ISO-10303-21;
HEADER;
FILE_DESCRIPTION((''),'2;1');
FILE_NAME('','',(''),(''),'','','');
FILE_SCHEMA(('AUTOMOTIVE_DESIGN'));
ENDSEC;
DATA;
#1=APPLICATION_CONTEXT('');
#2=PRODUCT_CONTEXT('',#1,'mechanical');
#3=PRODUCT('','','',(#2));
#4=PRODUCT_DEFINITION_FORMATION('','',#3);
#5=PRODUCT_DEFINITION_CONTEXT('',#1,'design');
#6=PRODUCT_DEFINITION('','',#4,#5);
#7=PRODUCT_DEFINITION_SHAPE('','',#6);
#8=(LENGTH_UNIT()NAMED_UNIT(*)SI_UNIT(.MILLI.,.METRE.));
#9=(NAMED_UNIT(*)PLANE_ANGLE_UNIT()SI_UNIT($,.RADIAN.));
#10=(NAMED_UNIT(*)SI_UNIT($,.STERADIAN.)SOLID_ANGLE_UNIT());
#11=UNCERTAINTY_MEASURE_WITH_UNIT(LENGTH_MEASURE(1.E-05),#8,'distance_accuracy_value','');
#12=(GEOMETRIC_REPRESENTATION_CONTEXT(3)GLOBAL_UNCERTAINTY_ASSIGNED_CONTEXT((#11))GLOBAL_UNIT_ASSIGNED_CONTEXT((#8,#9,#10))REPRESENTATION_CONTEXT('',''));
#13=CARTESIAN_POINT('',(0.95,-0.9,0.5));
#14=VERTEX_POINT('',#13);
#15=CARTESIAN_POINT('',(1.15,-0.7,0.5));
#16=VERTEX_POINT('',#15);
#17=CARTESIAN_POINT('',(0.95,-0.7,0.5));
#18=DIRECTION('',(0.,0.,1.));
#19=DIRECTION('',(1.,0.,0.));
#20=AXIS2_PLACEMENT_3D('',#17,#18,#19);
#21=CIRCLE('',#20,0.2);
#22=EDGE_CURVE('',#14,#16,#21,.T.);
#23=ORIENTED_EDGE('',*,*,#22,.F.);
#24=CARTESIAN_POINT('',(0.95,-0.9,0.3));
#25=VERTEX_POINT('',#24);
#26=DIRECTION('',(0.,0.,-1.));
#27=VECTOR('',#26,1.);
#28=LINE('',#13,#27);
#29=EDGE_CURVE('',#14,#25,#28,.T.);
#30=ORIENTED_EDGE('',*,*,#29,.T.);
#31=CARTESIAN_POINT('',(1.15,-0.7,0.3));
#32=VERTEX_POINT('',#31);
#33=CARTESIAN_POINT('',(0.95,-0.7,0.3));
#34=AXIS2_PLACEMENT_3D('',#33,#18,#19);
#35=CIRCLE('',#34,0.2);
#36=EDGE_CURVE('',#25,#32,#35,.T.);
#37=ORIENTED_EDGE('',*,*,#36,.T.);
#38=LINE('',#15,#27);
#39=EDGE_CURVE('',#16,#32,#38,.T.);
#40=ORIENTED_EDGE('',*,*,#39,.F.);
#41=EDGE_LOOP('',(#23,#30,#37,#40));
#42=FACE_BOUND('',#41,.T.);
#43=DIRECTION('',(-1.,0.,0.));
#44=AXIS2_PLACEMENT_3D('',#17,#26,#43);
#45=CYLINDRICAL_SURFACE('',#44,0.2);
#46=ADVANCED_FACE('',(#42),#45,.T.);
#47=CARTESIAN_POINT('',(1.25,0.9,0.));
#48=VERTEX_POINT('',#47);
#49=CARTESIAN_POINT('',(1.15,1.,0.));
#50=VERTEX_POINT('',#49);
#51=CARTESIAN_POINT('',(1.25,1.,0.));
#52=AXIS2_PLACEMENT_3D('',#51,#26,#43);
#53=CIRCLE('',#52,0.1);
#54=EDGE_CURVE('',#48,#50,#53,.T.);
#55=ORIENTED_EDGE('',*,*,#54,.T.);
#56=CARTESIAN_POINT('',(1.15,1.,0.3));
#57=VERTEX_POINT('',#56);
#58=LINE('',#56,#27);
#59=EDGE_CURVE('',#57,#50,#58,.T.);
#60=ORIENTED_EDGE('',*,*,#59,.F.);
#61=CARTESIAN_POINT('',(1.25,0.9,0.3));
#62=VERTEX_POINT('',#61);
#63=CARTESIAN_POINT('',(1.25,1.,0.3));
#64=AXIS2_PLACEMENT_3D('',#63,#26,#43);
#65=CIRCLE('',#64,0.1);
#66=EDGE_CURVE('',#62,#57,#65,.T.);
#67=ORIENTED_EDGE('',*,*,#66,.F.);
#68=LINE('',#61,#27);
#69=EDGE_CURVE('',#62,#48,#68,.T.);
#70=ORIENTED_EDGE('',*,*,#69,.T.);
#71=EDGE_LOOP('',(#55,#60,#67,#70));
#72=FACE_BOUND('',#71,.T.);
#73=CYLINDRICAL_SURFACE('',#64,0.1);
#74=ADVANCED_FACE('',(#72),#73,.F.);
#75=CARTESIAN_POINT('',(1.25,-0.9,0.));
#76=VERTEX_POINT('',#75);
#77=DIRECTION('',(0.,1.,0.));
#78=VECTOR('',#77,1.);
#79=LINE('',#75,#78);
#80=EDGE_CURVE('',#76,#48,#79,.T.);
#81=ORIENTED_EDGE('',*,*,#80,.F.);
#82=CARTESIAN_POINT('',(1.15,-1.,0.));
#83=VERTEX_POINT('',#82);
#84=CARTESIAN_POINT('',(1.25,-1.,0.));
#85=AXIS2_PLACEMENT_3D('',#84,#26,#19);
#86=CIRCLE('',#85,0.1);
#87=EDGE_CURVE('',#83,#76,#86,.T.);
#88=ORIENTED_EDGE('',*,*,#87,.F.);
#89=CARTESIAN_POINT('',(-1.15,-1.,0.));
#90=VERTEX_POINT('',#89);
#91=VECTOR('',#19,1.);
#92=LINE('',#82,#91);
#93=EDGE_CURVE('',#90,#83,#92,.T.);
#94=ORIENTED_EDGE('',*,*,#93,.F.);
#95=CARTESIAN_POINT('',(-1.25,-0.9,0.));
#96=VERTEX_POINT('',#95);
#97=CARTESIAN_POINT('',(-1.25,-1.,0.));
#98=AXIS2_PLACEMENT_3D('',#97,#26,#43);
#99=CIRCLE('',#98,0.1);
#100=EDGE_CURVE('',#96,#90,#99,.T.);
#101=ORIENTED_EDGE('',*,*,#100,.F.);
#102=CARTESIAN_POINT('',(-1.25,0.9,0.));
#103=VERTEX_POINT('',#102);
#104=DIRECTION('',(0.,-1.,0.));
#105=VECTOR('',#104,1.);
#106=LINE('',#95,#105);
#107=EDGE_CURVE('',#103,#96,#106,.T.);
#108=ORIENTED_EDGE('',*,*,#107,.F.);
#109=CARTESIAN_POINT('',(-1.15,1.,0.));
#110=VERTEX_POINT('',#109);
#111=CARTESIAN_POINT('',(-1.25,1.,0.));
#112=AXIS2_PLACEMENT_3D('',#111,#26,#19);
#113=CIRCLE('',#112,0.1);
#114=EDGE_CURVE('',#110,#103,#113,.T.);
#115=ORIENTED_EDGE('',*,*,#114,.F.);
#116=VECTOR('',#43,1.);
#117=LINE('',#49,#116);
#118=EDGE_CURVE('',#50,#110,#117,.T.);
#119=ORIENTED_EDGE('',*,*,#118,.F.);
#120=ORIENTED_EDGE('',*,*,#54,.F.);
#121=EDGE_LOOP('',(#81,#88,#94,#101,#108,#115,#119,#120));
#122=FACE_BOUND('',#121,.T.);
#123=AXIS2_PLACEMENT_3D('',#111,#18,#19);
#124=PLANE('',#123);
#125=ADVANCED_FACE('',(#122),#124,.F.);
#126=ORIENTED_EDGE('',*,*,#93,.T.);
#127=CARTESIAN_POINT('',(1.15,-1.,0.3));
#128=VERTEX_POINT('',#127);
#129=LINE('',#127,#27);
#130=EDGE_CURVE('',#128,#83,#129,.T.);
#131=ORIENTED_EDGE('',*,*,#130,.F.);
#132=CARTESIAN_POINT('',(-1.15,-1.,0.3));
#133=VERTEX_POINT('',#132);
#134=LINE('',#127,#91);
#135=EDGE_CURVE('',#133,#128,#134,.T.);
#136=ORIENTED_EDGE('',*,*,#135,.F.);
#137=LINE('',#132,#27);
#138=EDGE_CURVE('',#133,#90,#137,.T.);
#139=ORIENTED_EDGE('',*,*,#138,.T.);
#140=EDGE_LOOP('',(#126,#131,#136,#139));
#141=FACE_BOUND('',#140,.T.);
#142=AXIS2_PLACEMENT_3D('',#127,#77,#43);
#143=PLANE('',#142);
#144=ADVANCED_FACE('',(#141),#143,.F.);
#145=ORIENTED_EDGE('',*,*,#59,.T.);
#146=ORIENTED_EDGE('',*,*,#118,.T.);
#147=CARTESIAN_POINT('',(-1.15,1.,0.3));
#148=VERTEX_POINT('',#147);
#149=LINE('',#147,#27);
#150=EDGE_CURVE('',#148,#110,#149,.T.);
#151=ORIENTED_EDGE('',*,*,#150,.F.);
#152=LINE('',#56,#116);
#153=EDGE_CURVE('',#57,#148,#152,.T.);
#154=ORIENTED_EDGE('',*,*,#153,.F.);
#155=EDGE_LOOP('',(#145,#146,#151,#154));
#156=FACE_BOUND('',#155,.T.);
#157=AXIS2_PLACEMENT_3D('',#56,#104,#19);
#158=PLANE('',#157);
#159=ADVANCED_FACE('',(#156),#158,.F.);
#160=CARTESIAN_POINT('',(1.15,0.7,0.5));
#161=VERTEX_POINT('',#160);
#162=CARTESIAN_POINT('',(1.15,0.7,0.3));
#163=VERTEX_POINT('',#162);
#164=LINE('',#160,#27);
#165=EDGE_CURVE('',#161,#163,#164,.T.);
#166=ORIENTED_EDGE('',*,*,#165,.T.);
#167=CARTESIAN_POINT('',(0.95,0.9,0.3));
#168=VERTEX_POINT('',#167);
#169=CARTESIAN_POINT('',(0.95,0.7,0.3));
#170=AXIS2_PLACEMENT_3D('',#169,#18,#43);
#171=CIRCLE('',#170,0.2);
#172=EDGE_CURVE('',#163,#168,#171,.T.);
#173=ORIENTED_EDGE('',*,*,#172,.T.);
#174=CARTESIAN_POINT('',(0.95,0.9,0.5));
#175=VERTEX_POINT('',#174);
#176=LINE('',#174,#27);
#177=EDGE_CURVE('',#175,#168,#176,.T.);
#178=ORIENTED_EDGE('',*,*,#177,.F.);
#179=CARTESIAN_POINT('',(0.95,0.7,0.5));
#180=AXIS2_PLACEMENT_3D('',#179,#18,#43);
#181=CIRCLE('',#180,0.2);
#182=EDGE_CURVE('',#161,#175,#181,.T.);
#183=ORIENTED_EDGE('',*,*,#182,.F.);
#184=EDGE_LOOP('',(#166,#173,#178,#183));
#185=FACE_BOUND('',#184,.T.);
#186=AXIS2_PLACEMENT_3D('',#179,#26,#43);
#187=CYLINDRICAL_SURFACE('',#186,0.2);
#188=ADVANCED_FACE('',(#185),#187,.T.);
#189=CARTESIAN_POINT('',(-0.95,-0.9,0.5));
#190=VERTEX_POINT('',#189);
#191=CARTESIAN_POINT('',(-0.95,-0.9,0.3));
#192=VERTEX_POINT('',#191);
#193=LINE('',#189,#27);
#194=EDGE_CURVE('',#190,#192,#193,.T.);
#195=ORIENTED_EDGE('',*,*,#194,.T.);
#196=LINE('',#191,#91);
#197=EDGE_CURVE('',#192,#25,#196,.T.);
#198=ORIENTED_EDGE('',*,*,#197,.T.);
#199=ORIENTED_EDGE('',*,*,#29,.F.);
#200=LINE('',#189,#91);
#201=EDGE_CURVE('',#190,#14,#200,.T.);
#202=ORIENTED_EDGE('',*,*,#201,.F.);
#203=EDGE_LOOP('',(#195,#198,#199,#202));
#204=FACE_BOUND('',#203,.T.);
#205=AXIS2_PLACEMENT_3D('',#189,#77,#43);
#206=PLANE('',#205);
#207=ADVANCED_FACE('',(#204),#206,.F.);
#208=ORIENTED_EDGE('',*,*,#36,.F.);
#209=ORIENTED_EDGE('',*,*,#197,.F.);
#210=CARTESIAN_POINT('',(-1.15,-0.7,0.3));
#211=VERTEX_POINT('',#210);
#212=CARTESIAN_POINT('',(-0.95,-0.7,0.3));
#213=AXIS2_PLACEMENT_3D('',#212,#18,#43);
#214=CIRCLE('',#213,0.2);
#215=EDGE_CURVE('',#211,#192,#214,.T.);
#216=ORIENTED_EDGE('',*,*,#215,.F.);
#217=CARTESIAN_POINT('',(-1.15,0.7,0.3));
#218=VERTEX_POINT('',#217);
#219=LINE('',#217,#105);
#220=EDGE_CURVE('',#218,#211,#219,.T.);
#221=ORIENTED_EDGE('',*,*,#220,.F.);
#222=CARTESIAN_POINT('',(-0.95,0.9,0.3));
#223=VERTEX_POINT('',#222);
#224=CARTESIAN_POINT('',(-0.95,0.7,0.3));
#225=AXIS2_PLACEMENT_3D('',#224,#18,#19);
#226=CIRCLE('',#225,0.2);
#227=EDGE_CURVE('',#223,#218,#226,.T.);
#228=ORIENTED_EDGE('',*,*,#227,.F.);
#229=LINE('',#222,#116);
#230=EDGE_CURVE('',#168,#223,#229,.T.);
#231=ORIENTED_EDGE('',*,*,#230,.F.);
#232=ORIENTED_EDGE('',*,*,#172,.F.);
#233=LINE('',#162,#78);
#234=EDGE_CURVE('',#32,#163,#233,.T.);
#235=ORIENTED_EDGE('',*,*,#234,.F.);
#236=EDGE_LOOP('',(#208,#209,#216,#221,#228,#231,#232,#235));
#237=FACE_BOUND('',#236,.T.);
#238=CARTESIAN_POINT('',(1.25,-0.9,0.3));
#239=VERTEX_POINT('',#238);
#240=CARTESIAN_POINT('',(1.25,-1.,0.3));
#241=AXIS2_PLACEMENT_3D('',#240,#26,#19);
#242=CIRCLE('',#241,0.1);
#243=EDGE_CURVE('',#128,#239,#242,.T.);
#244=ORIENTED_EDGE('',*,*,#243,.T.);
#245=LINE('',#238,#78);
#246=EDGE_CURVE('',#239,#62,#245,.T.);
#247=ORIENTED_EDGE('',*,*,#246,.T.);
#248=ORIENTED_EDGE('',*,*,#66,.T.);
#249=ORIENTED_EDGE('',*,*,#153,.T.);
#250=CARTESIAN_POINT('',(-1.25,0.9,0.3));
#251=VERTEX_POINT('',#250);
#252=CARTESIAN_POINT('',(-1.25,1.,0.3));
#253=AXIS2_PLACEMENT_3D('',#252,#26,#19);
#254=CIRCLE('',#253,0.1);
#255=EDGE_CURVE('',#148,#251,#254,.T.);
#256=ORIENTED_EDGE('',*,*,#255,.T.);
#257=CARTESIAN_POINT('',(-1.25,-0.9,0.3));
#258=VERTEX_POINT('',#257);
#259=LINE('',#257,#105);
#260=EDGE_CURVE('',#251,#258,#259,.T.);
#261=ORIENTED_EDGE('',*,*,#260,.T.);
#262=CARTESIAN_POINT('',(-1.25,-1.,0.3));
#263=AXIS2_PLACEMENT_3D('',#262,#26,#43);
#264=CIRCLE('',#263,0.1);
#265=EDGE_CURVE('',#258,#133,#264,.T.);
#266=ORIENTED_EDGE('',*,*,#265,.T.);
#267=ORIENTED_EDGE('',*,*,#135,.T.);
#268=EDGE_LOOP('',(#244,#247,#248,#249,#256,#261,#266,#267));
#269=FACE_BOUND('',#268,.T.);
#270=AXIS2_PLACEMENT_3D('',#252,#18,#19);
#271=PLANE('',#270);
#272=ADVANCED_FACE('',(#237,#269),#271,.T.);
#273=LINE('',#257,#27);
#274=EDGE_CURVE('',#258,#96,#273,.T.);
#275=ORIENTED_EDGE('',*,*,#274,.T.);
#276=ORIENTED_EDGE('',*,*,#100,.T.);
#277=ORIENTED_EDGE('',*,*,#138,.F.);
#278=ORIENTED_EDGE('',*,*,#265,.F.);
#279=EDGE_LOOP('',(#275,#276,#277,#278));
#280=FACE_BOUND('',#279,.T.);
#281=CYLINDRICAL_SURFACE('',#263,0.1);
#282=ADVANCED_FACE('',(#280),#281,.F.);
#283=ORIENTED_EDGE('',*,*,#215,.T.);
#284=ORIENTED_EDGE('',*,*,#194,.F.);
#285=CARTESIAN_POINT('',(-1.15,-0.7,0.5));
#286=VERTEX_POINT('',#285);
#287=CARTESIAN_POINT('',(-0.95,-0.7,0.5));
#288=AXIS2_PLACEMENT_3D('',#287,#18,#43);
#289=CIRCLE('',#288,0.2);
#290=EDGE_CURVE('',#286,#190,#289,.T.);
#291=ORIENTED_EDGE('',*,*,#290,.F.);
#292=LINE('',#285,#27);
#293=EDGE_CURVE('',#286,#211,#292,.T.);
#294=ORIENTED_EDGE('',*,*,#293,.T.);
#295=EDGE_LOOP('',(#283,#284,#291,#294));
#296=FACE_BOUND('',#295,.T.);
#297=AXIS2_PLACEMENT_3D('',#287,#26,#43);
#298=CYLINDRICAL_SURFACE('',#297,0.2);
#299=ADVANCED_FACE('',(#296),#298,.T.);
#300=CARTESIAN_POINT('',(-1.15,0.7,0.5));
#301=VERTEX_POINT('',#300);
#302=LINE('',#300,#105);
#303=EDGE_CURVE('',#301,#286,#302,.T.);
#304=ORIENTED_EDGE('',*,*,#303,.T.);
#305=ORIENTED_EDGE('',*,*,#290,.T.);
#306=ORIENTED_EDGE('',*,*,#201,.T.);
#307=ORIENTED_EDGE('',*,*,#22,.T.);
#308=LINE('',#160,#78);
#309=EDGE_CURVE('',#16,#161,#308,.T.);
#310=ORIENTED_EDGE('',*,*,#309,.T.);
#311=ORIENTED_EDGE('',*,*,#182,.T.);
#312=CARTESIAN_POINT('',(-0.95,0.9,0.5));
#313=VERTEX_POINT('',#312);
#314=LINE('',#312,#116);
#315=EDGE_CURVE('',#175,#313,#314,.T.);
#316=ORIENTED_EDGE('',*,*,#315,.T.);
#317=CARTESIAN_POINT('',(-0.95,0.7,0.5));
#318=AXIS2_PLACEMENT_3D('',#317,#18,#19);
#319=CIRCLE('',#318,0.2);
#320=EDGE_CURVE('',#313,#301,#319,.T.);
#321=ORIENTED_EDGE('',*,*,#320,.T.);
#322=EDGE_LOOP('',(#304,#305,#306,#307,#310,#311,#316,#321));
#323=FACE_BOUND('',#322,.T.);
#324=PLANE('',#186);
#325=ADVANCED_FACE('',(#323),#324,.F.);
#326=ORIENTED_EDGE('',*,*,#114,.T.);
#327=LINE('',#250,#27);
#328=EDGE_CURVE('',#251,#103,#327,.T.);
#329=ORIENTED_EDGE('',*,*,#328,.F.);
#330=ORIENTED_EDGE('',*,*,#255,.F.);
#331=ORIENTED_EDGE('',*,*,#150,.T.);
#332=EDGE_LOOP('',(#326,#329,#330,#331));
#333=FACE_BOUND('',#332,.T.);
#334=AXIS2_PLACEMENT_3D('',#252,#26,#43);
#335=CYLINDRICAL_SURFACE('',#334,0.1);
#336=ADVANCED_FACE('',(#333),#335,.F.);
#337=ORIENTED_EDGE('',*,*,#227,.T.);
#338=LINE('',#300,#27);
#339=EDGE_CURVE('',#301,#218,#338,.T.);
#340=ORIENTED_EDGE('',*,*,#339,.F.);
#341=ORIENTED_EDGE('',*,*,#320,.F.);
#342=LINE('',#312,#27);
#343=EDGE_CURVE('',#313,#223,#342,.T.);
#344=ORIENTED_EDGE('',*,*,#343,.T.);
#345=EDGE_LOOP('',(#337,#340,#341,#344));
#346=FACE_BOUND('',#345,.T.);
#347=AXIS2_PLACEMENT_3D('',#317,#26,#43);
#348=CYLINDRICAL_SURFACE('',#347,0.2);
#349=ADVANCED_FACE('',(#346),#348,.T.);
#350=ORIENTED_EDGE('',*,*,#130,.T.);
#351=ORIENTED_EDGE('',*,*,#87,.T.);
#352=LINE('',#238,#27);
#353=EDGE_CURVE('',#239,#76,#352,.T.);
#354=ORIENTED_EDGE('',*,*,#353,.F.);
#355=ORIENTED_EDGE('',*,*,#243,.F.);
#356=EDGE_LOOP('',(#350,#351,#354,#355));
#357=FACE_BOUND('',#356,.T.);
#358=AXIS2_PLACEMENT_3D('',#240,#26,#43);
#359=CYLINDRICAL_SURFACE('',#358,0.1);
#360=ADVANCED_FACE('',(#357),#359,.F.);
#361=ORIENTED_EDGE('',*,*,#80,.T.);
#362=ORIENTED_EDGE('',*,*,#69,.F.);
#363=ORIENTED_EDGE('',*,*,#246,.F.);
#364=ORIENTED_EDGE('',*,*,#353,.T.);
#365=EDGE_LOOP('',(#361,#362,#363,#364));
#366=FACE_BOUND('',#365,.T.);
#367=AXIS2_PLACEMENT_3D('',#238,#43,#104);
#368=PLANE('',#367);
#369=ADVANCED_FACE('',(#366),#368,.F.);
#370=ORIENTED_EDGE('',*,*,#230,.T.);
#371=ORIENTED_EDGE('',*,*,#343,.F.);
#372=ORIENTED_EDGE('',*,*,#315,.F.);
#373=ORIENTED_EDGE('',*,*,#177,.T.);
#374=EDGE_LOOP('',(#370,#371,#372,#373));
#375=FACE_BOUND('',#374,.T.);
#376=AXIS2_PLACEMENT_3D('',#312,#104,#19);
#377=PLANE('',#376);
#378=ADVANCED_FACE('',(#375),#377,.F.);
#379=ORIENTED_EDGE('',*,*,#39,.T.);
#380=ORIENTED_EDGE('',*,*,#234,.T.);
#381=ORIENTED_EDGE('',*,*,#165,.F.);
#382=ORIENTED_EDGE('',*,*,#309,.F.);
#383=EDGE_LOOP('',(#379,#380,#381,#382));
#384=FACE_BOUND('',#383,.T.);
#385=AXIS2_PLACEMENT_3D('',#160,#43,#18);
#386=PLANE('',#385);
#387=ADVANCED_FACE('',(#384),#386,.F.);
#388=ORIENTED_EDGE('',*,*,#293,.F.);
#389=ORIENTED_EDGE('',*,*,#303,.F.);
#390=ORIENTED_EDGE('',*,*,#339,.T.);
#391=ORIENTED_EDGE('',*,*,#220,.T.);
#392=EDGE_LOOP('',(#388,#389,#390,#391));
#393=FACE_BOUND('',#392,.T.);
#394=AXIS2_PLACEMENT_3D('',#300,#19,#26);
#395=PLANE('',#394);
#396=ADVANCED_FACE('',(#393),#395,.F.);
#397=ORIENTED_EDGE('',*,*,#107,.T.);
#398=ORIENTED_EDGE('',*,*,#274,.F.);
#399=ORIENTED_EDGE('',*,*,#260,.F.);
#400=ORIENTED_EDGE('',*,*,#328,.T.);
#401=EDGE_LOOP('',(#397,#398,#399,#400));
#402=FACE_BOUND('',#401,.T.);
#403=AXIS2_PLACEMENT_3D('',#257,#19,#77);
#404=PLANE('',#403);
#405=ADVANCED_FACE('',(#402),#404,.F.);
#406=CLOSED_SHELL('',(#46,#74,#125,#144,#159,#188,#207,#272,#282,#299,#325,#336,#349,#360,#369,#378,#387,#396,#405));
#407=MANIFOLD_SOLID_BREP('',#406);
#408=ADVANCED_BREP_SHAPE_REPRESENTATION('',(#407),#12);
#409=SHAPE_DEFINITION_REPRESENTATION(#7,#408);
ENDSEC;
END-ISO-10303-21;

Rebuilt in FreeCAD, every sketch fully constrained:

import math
import FreeCAD as App
import Part
import Sketcher

V = App.Vector
Q = App.Units.Quantity

doc = App.newDocument("Part")
body = doc.addObject("PartDesign::Body", "Body")

# Sketch on XY plane
sketch1 = doc.addObject("Sketcher::SketchObject", "Sketch")
body.addObject(sketch1)
sketch1.AttachmentSupport = (doc.XY_Plane, [""])
sketch1.MapMode = "FlatFace"
sketch1.addGeometry([
    Part.LineSegment(V(-1.25, 0.9, 0), V(-1.25, -0.9, 0)),  # 0
    Part.ArcOfCircle(Part.Circle(V(-1.25, -1, 0), V(0, 0, 1), 0.1), math.radians(0), math.radians(90)),  # 1
    Part.LineSegment(V(-1.15, -1, 0), V(1.15, -1, 0)),  # 2
    Part.ArcOfCircle(Part.Circle(V(1.25, -1, 0), V(0, 0, 1), 0.1), math.radians(90), math.radians(180)),  # 3
    Part.LineSegment(V(1.25, -0.9, 0), V(1.25, 0.9, 0)),  # 4
    Part.ArcOfCircle(Part.Circle(V(1.25, 1, 0), V(0, 0, 1), 0.1), math.radians(180), math.radians(270)),  # 5
    Part.LineSegment(V(1.15, 1, 0), V(-1.15, 1, 0)),  # 6
    Part.ArcOfCircle(Part.Circle(V(-1.25, 1, 0), V(0, 0, 1), 0.1), math.radians(-90), math.radians(0)),  # 7
], False)
sketch1.addConstraint([
    Sketcher.Constraint("Coincident", 0, 2, 1, 2),
    Sketcher.Constraint("Coincident", 1, 1, 2, 1),
    Sketcher.Constraint("Coincident", 2, 2, 3, 2),
    Sketcher.Constraint("Coincident", 3, 1, 4, 1),
    Sketcher.Constraint("Coincident", 4, 2, 5, 2),
    Sketcher.Constraint("Coincident", 5, 1, 6, 1),
    Sketcher.Constraint("Coincident", 6, 2, 7, 2),
    Sketcher.Constraint("Coincident", 7, 1, 0, 1),
    Sketcher.Constraint("Vertical", 0),
    Sketcher.Constraint("Horizontal", 2),
    Sketcher.Constraint("Vertical", 4),
    Sketcher.Constraint("Horizontal", 6),
    Sketcher.Constraint("Equal", 1, 3),
    Sketcher.Constraint("Equal", 3, 5),
    Sketcher.Constraint("Equal", 5, 7),
    Sketcher.Constraint("Symmetric", 1, 3, 5, 3, -1, 1),
    Sketcher.Constraint("Symmetric", 3, 3, 7, 3, -1, 1),
    Sketcher.Constraint("Symmetric", 1, 3, 3, 3, -2),
    Sketcher.Constraint("Horizontal", 3, 3, 1, 1),
    Sketcher.Constraint("Horizontal", 7, 3, 5, 1),
    Sketcher.Constraint("Vertical", 7, 3, 0, 2),
    Sketcher.Constraint("Vertical", 5, 3, 3, 1),
    Sketcher.Constraint("Radius", 1, Q("0.1 mm")),
    Sketcher.Constraint("DistanceX", 2, 1, 2, 2, Q("2.3 mm")),
    Sketcher.Constraint("DistanceY", 0, 2, 0, 1, Q("1.8 mm")),
])
pad1 = doc.addObject("PartDesign::Pad", "Pad")
body.addObject(pad1)
pad1.Profile = sketch1
pad1.Length = 0.3

# Sketch on XY plane
sketch2 = doc.addObject("Sketcher::SketchObject", "Sketch001")
body.addObject(sketch2)
sketch2.AttachmentSupport = (doc.XY_Plane, [""])
sketch2.MapMode = "FlatFace"
sketch2.AttachmentOffset = App.Placement(V(0, 0, 0.3), App.Rotation())
sketch2.addGeometry([
    Part.LineSegment(V(0.95, 0.9, 0), V(-0.95, 0.9, 0)),  # 0
    Part.ArcOfCircle(Part.Circle(V(-0.95, 0.7, 0), V(0, 0, 1), 0.2), math.radians(90), math.radians(180)),  # 1
    Part.LineSegment(V(-1.15, 0.7, 0), V(-1.15, -0.7, 0)),  # 2
    Part.ArcOfCircle(Part.Circle(V(-0.95, -0.7, 0), V(0, 0, 1), 0.2), math.radians(-180), math.radians(-90)),  # 3
    Part.LineSegment(V(-0.95, -0.9, 0), V(0.95, -0.9, 0)),  # 4
    Part.ArcOfCircle(Part.Circle(V(0.95, -0.7, 0), V(0, 0, 1), 0.2), math.radians(-90), math.radians(0)),  # 5
    Part.LineSegment(V(1.15, -0.7, 0), V(1.15, 0.7, 0)),  # 6
    Part.ArcOfCircle(Part.Circle(V(0.95, 0.7, 0), V(0, 0, 1), 0.2), math.radians(0), math.radians(90)),  # 7
], False)
sketch2.addConstraint([
    Sketcher.Constraint("Tangent", 0, 2, 1, 1),
    Sketcher.Constraint("Tangent", 1, 2, 2, 1),
    Sketcher.Constraint("Tangent", 2, 2, 3, 1),
    Sketcher.Constraint("Tangent", 3, 2, 4, 1),
    Sketcher.Constraint("Tangent", 4, 2, 5, 1),
    Sketcher.Constraint("Tangent", 5, 2, 6, 1),
    Sketcher.Constraint("Tangent", 6, 2, 7, 1),
    Sketcher.Constraint("Tangent", 7, 2, 0, 1),
    Sketcher.Constraint("Horizontal", 0),
    Sketcher.Constraint("Vertical", 2),
    Sketcher.Constraint("Horizontal", 4),
    Sketcher.Constraint("Vertical", 6),
    Sketcher.Constraint("Equal", 1, 3),
    Sketcher.Constraint("Equal", 3, 5),
    Sketcher.Constraint("Equal", 5, 7),
    Sketcher.Constraint("Symmetric", 1, 3, 5, 3, -1, 1),
    Sketcher.Constraint("Radius", 1, Q("0.2 mm")),
    Sketcher.Constraint("DistanceX", 0, 2, 0, 1, Q("1.9 mm")),
    Sketcher.Constraint("DistanceY", 2, 2, 2, 1, Q("1.4 mm")),
])
pad2 = doc.addObject("PartDesign::Pad", "Pad001")
body.addObject(pad2)
pad2.Profile = sketch2
pad2.Length = 0.2

doc.recompute()
